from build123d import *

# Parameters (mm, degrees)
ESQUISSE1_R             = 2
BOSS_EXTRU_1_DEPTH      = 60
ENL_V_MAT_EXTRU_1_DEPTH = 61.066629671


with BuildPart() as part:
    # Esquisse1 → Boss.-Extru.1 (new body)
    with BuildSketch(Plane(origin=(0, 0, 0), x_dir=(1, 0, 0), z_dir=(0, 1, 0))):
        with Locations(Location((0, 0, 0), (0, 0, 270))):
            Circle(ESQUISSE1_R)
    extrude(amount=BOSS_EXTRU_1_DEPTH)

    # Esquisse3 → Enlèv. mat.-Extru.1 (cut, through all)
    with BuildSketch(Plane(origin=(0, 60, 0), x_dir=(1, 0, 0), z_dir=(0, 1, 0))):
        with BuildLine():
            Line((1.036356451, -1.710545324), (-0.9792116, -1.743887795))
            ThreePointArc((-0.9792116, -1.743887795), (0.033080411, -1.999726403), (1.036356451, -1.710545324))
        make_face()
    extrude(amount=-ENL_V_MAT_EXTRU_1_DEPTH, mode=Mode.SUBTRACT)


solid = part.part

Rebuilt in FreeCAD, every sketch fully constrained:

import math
import FreeCAD as App
import Part
import Sketcher

V = App.Vector

doc = App.newDocument("Part")
body = doc.addObject("PartDesign::Body", "Body")

sketch1 = body.newObject("Sketcher::SketchObject", "Sketch")
sketch1.AttachmentSupport = (doc.getObject("XZ_Plane"), [""])
sketch1.MapMode = "FlatFace"
sketch1.addGeometry(Part.Circle(V(0, 0, 0), V(0, 0, 1), 2), False)
sketch1.addConstraint(Sketcher.Constraint("Coincident", 0, 3, -1, 1))
sketch1.addConstraint(Sketcher.Constraint("Diameter", 0, 4.0))
pad1 = body.newObject("PartDesign::Pad", "Pad")
pad1.Profile = sketch1
pad1.Length = 60
pad1.Reversed = True

sketch2 = body.newObject("Sketcher::SketchObject", "Sketch001")
sketch2.AttachmentSupport = (doc.getObject("XZ_Plane"), [""])
sketch2.MapMode = "FlatFace"
sketch2.AttachmentOffset = App.Placement(V(0, 0, -60), App.Rotation())
sketch2.addGeometry(Part.LineSegment(V(1.036356, 1.710545, 0), V(-0.979212, 1.743888, 0)), False)
sketch2.addGeometry(Part.ArcOfCircle(Part.Circle(V(0, 0, 0), V(0, 0, 1), 2), math.radians(58.78987), math.radians(119.314675)), False)
sketch2.addConstraint(Sketcher.Constraint("Coincident", 0, 1, 1, 1))
sketch2.addConstraint(Sketcher.Constraint("Coincident", 1, 2, 0, 2))
sketch2.addConstraint(Sketcher.Constraint("Coincident", 1, 3, -1, 1))
sketch2.addConstraint(Sketcher.Constraint("Radius", 1, 2.0))
sketch2.addConstraint(Sketcher.Constraint("DistanceX", 1, 2, -1, 1, 0.979212))
sketch2.addConstraint(Sketcher.Constraint("DistanceX", 1, 2, 0, 1, 2.015568))
pocket1 = body.newObject("PartDesign::Pocket", "Pocket")
pocket1.Profile = sketch2
pocket1.Type = "ThroughAll"
pocket1.Reversed = True

doc.recompute()
